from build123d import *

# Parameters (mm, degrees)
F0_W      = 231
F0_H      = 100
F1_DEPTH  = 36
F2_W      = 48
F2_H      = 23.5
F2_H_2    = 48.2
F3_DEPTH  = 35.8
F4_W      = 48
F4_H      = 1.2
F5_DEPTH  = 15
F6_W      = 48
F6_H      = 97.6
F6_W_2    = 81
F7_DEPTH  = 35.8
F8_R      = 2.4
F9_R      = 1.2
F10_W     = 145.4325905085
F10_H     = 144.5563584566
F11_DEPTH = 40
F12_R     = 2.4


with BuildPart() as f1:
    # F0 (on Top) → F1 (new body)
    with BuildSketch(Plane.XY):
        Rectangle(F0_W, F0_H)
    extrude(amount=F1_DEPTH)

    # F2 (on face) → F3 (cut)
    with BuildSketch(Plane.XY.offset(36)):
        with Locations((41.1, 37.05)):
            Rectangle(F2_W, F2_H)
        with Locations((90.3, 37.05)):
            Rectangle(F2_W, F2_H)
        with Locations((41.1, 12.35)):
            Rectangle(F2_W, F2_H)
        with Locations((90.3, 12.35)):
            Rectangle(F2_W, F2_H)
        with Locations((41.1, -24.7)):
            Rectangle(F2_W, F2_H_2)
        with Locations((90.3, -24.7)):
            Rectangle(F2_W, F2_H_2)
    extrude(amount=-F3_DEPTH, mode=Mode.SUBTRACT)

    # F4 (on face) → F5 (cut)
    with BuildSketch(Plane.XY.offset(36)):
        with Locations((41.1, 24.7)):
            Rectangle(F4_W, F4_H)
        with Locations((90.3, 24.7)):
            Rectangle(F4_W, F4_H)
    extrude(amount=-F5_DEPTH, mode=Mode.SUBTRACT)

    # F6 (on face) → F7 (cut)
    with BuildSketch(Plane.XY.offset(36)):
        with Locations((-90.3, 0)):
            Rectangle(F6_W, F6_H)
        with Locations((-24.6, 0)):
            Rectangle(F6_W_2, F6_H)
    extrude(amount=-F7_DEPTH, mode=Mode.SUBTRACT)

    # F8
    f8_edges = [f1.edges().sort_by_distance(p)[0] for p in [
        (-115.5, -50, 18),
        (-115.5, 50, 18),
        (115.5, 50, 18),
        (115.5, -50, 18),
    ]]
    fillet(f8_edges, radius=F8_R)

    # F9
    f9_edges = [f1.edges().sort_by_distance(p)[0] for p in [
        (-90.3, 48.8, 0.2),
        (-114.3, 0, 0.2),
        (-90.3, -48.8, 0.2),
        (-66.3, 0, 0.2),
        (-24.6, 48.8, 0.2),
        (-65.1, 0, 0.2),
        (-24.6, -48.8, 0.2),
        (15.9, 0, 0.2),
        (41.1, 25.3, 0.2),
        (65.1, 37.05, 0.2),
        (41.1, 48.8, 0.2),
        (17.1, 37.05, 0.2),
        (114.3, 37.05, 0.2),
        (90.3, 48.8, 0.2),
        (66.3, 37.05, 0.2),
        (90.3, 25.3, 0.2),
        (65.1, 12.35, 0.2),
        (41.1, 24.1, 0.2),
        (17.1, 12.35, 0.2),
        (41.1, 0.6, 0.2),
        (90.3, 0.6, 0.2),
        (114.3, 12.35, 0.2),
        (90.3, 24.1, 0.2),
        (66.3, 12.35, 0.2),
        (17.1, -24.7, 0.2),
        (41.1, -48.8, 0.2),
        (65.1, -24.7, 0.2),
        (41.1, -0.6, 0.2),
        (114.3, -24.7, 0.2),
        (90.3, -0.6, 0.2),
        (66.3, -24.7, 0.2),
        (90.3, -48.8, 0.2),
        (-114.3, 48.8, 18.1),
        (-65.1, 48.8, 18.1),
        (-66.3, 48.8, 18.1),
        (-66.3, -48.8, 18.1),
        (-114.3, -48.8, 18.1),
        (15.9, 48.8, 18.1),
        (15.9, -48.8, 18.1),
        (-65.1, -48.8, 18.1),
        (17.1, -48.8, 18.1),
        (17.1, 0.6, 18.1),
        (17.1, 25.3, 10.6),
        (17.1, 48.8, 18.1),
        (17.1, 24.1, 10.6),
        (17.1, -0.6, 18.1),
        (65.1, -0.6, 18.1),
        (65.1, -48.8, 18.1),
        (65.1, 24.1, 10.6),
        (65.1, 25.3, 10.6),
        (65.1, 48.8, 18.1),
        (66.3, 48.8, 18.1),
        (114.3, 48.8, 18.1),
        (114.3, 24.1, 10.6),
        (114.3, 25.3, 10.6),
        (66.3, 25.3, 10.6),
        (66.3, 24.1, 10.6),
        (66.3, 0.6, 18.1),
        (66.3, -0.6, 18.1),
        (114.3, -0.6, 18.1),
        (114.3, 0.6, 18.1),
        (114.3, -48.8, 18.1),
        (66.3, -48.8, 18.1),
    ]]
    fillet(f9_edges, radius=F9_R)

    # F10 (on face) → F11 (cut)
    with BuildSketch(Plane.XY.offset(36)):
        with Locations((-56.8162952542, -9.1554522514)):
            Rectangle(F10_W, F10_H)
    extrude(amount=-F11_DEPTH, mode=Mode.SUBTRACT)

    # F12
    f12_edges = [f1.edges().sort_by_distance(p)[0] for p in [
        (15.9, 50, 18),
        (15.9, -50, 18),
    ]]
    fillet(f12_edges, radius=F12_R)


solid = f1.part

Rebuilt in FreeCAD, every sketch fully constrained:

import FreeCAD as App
import Part
import Sketcher

V = App.Vector
Q = App.Units.Quantity


def edges_at(feature, points):
    """Names of the edges that pass closest to the given points."""
    edges = feature.Shape.Edges
    near = lambda p: min(range(len(edges)), key=lambda i: edges[i].distToShape(Part.Vertex(*p))[0])
    return sorted({f"Edge{near(p) + 1}" for p in points})

doc = App.newDocument("Part")
body = doc.addObject("PartDesign::Body", "Body")

# Sketch on XY plane
sketch1 = doc.addObject("Sketcher::SketchObject", "Sketch")
body.addObject(sketch1)
sketch1.AttachmentSupport = (doc.XY_Plane, [""])
sketch1.MapMode = "FlatFace"
sketch1.addGeometry([
    Part.LineSegment(V(-115.5, 50, 0), V(-115.5, -50, 0)),
    Part.LineSegment(V(-115.5, -50, 0), V(115.5, -50, 0)),
    Part.LineSegment(V(115.5, -50, 0), V(115.5, 50, 0)),
    Part.LineSegment(V(115.5, 50, 0), V(-115.5, 50, 0)),
], False)
sketch1.addConstraint([
    Sketcher.Constraint("Coincident", 0, 2, 1, 1),
    Sketcher.Constraint("Coincident", 1, 2, 2, 1),
    Sketcher.Constraint("Coincident", 2, 2, 3, 1),
    Sketcher.Constraint("Coincident", 3, 2, 0, 1),
    Sketcher.Constraint("Vertical", 0),
    Sketcher.Constraint("Horizontal", 1),
    Sketcher.Constraint("Vertical", 2),
    Sketcher.Constraint("Horizontal", 3),
    Sketcher.Constraint("Symmetric", 0, 2, 2, 2, -1, 1),
    Sketcher.Constraint("DistanceX", 1, 1, 1, 2, Q("231 mm")),
    Sketcher.Constraint("DistanceY", 0, 2, 0, 1, Q("100 mm")),
])
pad1 = doc.addObject("PartDesign::Pad", "Pad")
body.addObject(pad1)
pad1.Profile = sketch1
pad1.Length = 36

# Sketch on XY plane
sketch2 = doc.addObject("Sketcher::SketchObject", "Sketch001")
body.addObject(sketch2)
sketch2.AttachmentSupport = (doc.XY_Plane, [""])
sketch2.MapMode = "FlatFace"
sketch2.AttachmentOffset = App.Placement(V(0, 0, 36), App.Rotation())
sketch2.addGeometry([
    Part.LineSegment(V(17.1, 48.8, 0), V(17.1, 25.3, 0)),  # 0
    Part.LineSegment(V(17.1, 25.3, 0), V(65.1, 25.3, 0)),  # 1
    Part.LineSegment(V(65.1, 25.3, 0), V(65.1, 48.8, 0)),  # 2
    Part.LineSegment(V(65.1, 48.8, 0), V(17.1, 48.8, 0)),  # 3
    Part.LineSegment(V(66.3, 48.8, 0), V(66.3, 25.3, 0)),  # 4
    Part.LineSegment(V(66.3, 25.3, 0), V(114.3, 25.3, 0)),  # 5
    Part.LineSegment(V(114.3, 25.3, 0), V(114.3, 48.8, 0)),  # 6
    Part.LineSegment(V(114.3, 48.8, 0), V(66.3, 48.8, 0)),  # 7
    Part.LineSegment(V(17.1, 24.1, 0), V(17.1, 0.6, 0)),  # 8
    Part.LineSegment(V(17.1, 0.6, 0), V(65.1, 0.6, 0)),  # 9
    Part.LineSegment(V(65.1, 0.6, 0), V(65.1, 24.1, 0)),  # 10
    Part.LineSegment(V(65.1, 24.1, 0), V(17.1, 24.1, 0)),  # 11
    Part.LineSegment(V(66.3, 24.1, 0), V(66.3, 0.6, 0)),  # 12
    Part.LineSegment(V(66.3, 0.6, 0), V(114.3, 0.6, 0)),  # 13
    Part.LineSegment(V(114.3, 0.6, 0), V(114.3, 24.1, 0)),  # 14
    Part.LineSegment(V(114.3, 24.1, 0), V(66.3, 24.1, 0)),  # 15
    Part.LineSegment(V(17.1, -0.6, 0), V(17.1, -48.8, 0)),  # 16
    Part.LineSegment(V(17.1, -48.8, 0), V(65.1, -48.8, 0)),  # 17
    Part.LineSegment(V(65.1, -48.8, 0), V(65.1, -0.6, 0)),  # 18
    Part.LineSegment(V(65.1, -0.6, 0), V(17.1, -0.6, 0)),  # 19
    Part.LineSegment(V(66.3, -0.6, 0), V(66.3, -48.8, 0)),  # 20
    Part.LineSegment(V(66.3, -48.8, 0), V(114.3, -48.8, 0)),  # 21
    Part.LineSegment(V(114.3, -48.8, 0), V(114.3, -0.6, 0)),  # 22
    Part.LineSegment(V(114.3, -0.6, 0), V(66.3, -0.6, 0)),  # 23
], False)
sketch2.addConstraint([
    Sketcher.Constraint("Coincident", 0, 2, 1, 1),
    Sketcher.Constraint("Coincident", 1, 2, 2, 1),
    Sketcher.Constraint("Coincident", 2, 2, 3, 1),
    Sketcher.Constraint("Coincident", 3, 2, 0, 1),
    Sketcher.Constraint("Coincident", 4, 2, 5, 1),
    Sketcher.Constraint("Coincident", 5, 2, 6, 1),
    Sketcher.Constraint("Coincident", 6, 2, 7, 1),
    Sketcher.Constraint("Coincident", 7, 2, 4, 1),
    Sketcher.Constraint("Coincident", 8, 2, 9, 1),
    Sketcher.Constraint("Coincident", 9, 2, 10, 1),
    Sketcher.Constraint("Coincident", 10, 2, 11, 1),
    Sketcher.Constraint("Coincident", 11, 2, 8, 1),
    Sketcher.Constraint("Coincident", 12, 2, 13, 1),
    Sketcher.Constraint("Coincident", 13, 2, 14, 1),
    Sketcher.Constraint("Coincident", 14, 2, 15, 1),
    Sketcher.Constraint("Coincident", 15, 2, 12, 1),
    Sketcher.Constraint("Coincident", 16, 2, 17, 1),
    Sketcher.Constraint("Coincident", 17, 2, 18, 1),
    Sketcher.Constraint("Coincident", 18, 2, 19, 1),
    Sketcher.Constraint("Coincident", 19, 2, 16, 1),
    Sketcher.Constraint("Coincident", 20, 2, 21, 1),
    Sketcher.Constraint("Coincident", 21, 2, 22, 1),
    Sketcher.Constraint("Coincident", 22, 2, 23, 1),
    Sketcher.Constraint("Coincident", 23, 2, 20, 1),
    Sketcher.Constraint("Vertical", 0),
    Sketcher.Constraint("Horizontal", 1),
    Sketcher.Constraint("Vertical", 2),
    Sketcher.Constraint("Horizontal", 3),
    Sketcher.Constraint("Vertical", 4),
    Sketcher.Constraint("Horizontal", 5),
    Sketcher.Constraint("Vertical", 6),
    Sketcher.Constraint("Horizontal", 7),
    Sketcher.Constraint("Vertical", 8),
    Sketcher.Constraint("Horizontal", 9),
    Sketcher.Constraint("Vertical", 10),
    Sketcher.Constraint("Horizontal", 11),
    Sketcher.Constraint("Vertical", 12),
    Sketcher.Constraint("Horizontal", 13),
    Sketcher.Constraint("Vertical", 14),
    Sketcher.Constraint("Horizontal", 15),
    Sketcher.Constraint("Vertical", 16),
    Sketcher.Constraint("Horizontal", 17),
    Sketcher.Constraint("Vertical", 18),
    Sketcher.Constraint("Horizontal", 19),
    Sketcher.Constraint("Vertical", 20),
    Sketcher.Constraint("Horizontal", 21),
    Sketcher.Constraint("Vertical", 22),
    Sketcher.Constraint("Horizontal", 23),
    Sketcher.Constraint("Symmetric", 3, 2, 16, 2, -1),
    Sketcher.Constraint("Symmetric", 9, 2, 18, 2, -1),
    Sketcher.Constraint("Symmetric", 7, 2, 20, 2, -1),
    Sketcher.Constraint("Symmetric", 13, 2, 22, 2, -1),
    Sketcher.Constraint("Horizontal", 1, 2, 4, 2),
    Sketcher.Constraint("Horizontal", 3, 2, 6, 2),
    Sketcher.Constraint("Horizontal", 9, 2, 12, 2),
    Sketcher.Constraint("Horizontal", 11, 2, 14, 2),
    Sketcher.Constraint("Vertical", 3, 2, 8, 2),
    Sketcher.Constraint("Vertical", 2, 2, 9, 2),
    Sketcher.Constraint("Vertical", 7, 2, 12, 2),
    Sketcher.Constraint("Vertical", 6, 2, 13, 2),
    Sketcher.Constraint("Equal", 3, 5),
    Sketcher.Constraint("Equal", 6, 8),
    Sketcher.Constraint("DistanceX", 1, 1, 1, 2, Q("48 mm")),
    Sketcher.Constraint("DistanceY", 0, 2, 0, 1, Q("23.5 mm")),
    Sketcher.Constraint("DistanceY", 16, 2, 16, 1, Q("48.2 mm")),
    Sketcher.Constraint("DistanceX", -1, 1, 0, 2, Q("17.1 mm")),
    Sketcher.Constraint("DistanceY", -1, 1, 0, 2, Q("25.3 mm")),
    Sketcher.Constraint("DistanceX", -1, 1, 4, 2, Q("66.3 mm")),
])
pocket1 = doc.addObject("PartDesign::Pocket", "Pocket")
body.addObject(pocket1)
pocket1.Profile = sketch2
pocket1.Length = 35.8

# Sketch on XY plane
sketch3 = doc.addObject("Sketcher::SketchObject", "Sketch002")
body.addObject(sketch3)
sketch3.AttachmentSupport = (doc.XY_Plane, [""])
sketch3.MapMode = "FlatFace"
sketch3.AttachmentOffset = App.Placement(V(0, 0, 36), App.Rotation())
sketch3.addGeometry([
    Part.LineSegment(V(17.1, 25.3, 0), V(17.1, 24.1, 0)),  # 0
    Part.LineSegment(V(17.1, 24.1, 0), V(65.1, 24.1, 0)),  # 1
    Part.LineSegment(V(65.1, 24.1, 0), V(65.1, 25.3, 0)),  # 2
    Part.LineSegment(V(65.1, 25.3, 0), V(17.1, 25.3, 0)),  # 3
    Part.LineSegment(V(66.3, 25.3, 0), V(66.3, 24.1, 0)),  # 4
    Part.LineSegment(V(66.3, 24.1, 0), V(114.3, 24.1, 0)),  # 5
    Part.LineSegment(V(114.3, 24.1, 0), V(114.3, 25.3, 0)),  # 6
    Part.LineSegment(V(114.3, 25.3, 0), V(66.3, 25.3, 0)),  # 7
], False)
sketch3.addConstraint([
    Sketcher.Constraint("Coincident", 0, 2, 1, 1),
    Sketcher.Constraint("Coincident", 1, 2, 2, 1),
    Sketcher.Constraint("Coincident", 2, 2, 3, 1),
    Sketcher.Constraint("Coincident", 3, 2, 0, 1),
    Sketcher.Constraint("Coincident", 4, 2, 5, 1),
    Sketcher.Constraint("Coincident", 5, 2, 6, 1),
    Sketcher.Constraint("Coincident", 6, 2, 7, 1),
    Sketcher.Constraint("Coincident", 7, 2, 4, 1),
    Sketcher.Constraint("Vertical", 0),
    Sketcher.Constraint("Horizontal", 1),
    Sketcher.Constraint("Vertical", 2),
    Sketcher.Constraint("Horizontal", 3),
    Sketcher.Constraint("Vertical", 4),
    Sketcher.Constraint("Horizontal", 5),
    Sketcher.Constraint("Vertical", 6),
    Sketcher.Constraint("Horizontal", 7),
    Sketcher.Constraint("Horizontal", 1, 2, 4, 2),
    Sketcher.Constraint("Horizontal", 3, 2, 6, 2),
    Sketcher.Constraint("Equal", 3, 5),
    Sketcher.Constraint("DistanceX", 1, 1, 1, 2, Q("48 mm")),
    Sketcher.Constraint("DistanceY", 0, 2, 0, 1, Q("1.2 mm")),
    Sketcher.Constraint("DistanceX", -1, 1, 0, 2, Q("17.1 mm")),
    Sketcher.Constraint("DistanceY", -1, 1, 0, 2, Q("24.1 mm")),
    Sketcher.Constraint("DistanceX", -1, 1, 4, 2, Q("66.3 mm")),
])
pocket2 = doc.addObject("PartDesign::Pocket", "Pocket001")
body.addObject(pocket2)
pocket2.Profile = sketch3
pocket2.Length = 15

# Sketch on XY plane
sketch4 = doc.addObject("Sketcher::SketchObject", "Sketch003")
body.addObject(sketch4)
sketch4.AttachmentSupport = (doc.XY_Plane, [""])
sketch4.MapMode = "FlatFace"
sketch4.AttachmentOffset = App.Placement(V(0, 0, 36), App.Rotation())
sketch4.addGeometry([
    Part.LineSegment(V(-114.3, 48.8, 0), V(-114.3, -48.8, 0)),  # 0
    Part.LineSegment(V(-114.3, -48.8, 0), V(-66.3, -48.8, 0)),  # 1
    Part.LineSegment(V(-66.3, -48.8, 0), V(-66.3, 48.8, 0)),  # 2
    Part.LineSegment(V(-66.3, 48.8, 0), V(-114.3, 48.8, 0)),  # 3
    Part.LineSegment(V(-65.1, 48.8, 0), V(-65.1, -48.8, 0)),  # 4
    Part.LineSegment(V(-65.1, -48.8, 0), V(15.9, -48.8, 0)),  # 5
    Part.LineSegment(V(15.9, -48.8, 0), V(15.9, 48.8, 0)),  # 6
    Part.LineSegment(V(15.9, 48.8, 0), V(-65.1, 48.8, 0)),  # 7
], False)
sketch4.addConstraint([
    Sketcher.Constraint("Coincident", 0, 2, 1, 1),
    Sketcher.Constraint("Coincident", 1, 2, 2, 1),
    Sketcher.Constraint("Coincident", 2, 2, 3, 1),
    Sketcher.Constraint("Coincident", 3, 2, 0, 1),
    Sketcher.Constraint("Coincident", 4, 2, 5, 1),
    Sketcher.Constraint("Coincident", 5, 2, 6, 1),
    Sketcher.Constraint("Coincident", 6, 2, 7, 1),
    Sketcher.Constraint("Coincident", 7, 2, 4, 1),
    Sketcher.Constraint("Vertical", 0),
    Sketcher.Constraint("Horizontal", 1),
    Sketcher.Constraint("Vertical", 2),
    Sketcher.Constraint("Horizontal", 3),
    Sketcher.Constraint("Vertical", 4),
    Sketcher.Constraint("Horizontal", 5),
    Sketcher.Constraint("Vertical", 6),
    Sketcher.Constraint("Horizontal", 7),
    Sketcher.Constraint("Horizontal", 1, 2, 4, 2),
    Sketcher.Constraint("Horizontal", 3, 2, 6, 2),
    Sketcher.Constraint("DistanceX", 1, 1, 1, 2, Q("48 mm")),
    Sketcher.Constraint("DistanceX", 5, 1, 5, 2, Q("81 mm")),
    Sketcher.Constraint("DistanceY", 0, 2, 0, 1, Q("97.6 mm")),
    Sketcher.Constraint("DistanceX", 0, 2, -1, 1, Q("114.3 mm")),
    Sketcher.Constraint("DistanceY", 0, 2, -1, 1, Q("48.8 mm")),
    Sketcher.Constraint("DistanceX", 4, 2, -1, 1, Q("65.1 mm")),
])
pocket3 = doc.addObject("PartDesign::Pocket", "Pocket002")
body.addObject(pocket3)
pocket3.Profile = sketch4
pocket3.Length = 35.8
doc.recompute()

fillet = doc.addObject("PartDesign::Fillet", "Fillet")
body.addObject(fillet)
fillet.Base = (pocket3, edges_at(pocket3, [
    (-115.5, -50, 18),
    (-115.5, 50, 18),
    (115.5, 50, 18),
    (115.5, -50, 18),
]))
fillet.Radius = 2.4
doc.recompute()

fillet2 = doc.addObject("PartDesign::Fillet", "Fillet001")
body.addObject(fillet2)
fillet2.Base = (fillet, edges_at(fillet, [
    (-90.3, 48.8, 0.2),
    (-114.3, 0, 0.2),
    (-90.3, -48.8, 0.2),
    (-66.3, 0, 0.2),
    (-24.6, 48.8, 0.2),
    (-65.1, 0, 0.2),
    (-24.6, -48.8, 0.2),
    (15.9, 0, 0.2),
    (41.1, 25.3, 0.2),
    (65.1, 37.05, 0.2),
    (41.1, 48.8, 0.2),
    (17.1, 37.05, 0.2),
    (114.3, 37.05, 0.2),
    (90.3, 48.8, 0.2),
    (66.3, 37.05, 0.2),
    (90.3, 25.3, 0.2),
    (65.1, 12.35, 0.2),
    (41.1, 24.1, 0.2),
    (17.1, 12.35, 0.2),
    (41.1, 0.6, 0.2),
    (90.3, 0.6, 0.2),
    (114.3, 12.35, 0.2),
    (90.3, 24.1, 0.2),
    (66.3, 12.35, 0.2),
    (17.1, -24.7, 0.2),
    (41.1, -48.8, 0.2),
    (65.1, -24.7, 0.2),
    (41.1, -0.6, 0.2),
    (114.3, -24.7, 0.2),
    (90.3, -0.6, 0.2),
    (66.3, -24.7, 0.2),
    (90.3, -48.8, 0.2),
    (-114.3, 48.8, 18.1),
    (-65.1, 48.8, 18.1),
    (-66.3, 48.8, 18.1),
    (-66.3, -48.8, 18.1),
    (-114.3, -48.8, 18.1),
    (15.9, 48.8, 18.1),
    (15.9, -48.8, 18.1),
    (-65.1, -48.8, 18.1),
    (17.1, -48.8, 18.1),
    (17.1, 0.6, 18.1),
    (17.1, 25.3, 10.6),
    (17.1, 48.8, 18.1),
    (17.1, 24.1, 10.6),
    (17.1, -0.6, 18.1),
    (65.1, -0.6, 18.1),
    (65.1, -48.8, 18.1),
    (65.1, 24.1, 10.6),
    (65.1, 25.3, 10.6),
    (65.1, 48.8, 18.1),
    (66.3, 48.8, 18.1),
    (114.3, 48.8, 18.1),
    (114.3, 24.1, 10.6),
    (114.3, 25.3, 10.6),
    (66.3, 25.3, 10.6),
    (66.3, 24.1, 10.6),
    (66.3, 0.6, 18.1),
    (66.3, -0.6, 18.1),
    (114.3, -0.6, 18.1),
    (114.3, 0.6, 18.1),
    (114.3, -48.8, 18.1),
    (66.3, -48.8, 18.1),
]))
fillet2.Radius = 1.2

# Sketch on XY plane
sketch5 = doc.addObject("Sketcher::SketchObject", "Sketch004")
body.addObject(sketch5)
sketch5.AttachmentSupport = (doc.XY_Plane, [""])
sketch5.MapMode = "FlatFace"
sketch5.AttachmentOffset = App.Placement(V(0, 0, 36), App.Rotation())
sketch5.addGeometry([
    Part.LineSegment(V(-129.532591, 63.122727, 0), V(-129.532591, -81.433631, 0)),
    Part.LineSegment(V(-129.532591, -81.433631, 0), V(15.9, -81.433631, 0)),
    Part.LineSegment(V(15.9, -81.433631, 0), V(15.9, 63.122727, 0)),
    Part.LineSegment(V(15.9, 63.122727, 0), V(-129.532591, 63.122727, 0)),
], False)
sketch5.addConstraint([
    Sketcher.Constraint("Coincident", 0, 2, 1, 1),
    Sketcher.Constraint("Coincident", 1, 2, 2, 1),
    Sketcher.Constraint("Coincident", 2, 2, 3, 1),
    Sketcher.Constraint("Coincident", 3, 2, 0, 1),
    Sketcher.Constraint("Vertical", 0),
    Sketcher.Constraint("Horizontal", 1),
    Sketcher.Constraint("Vertical", 2),
    Sketcher.Constraint("Horizontal", 3),
    Sketcher.Constraint("DistanceX", -1, 1, 1, 2, Q("15.9 mm")),
    Sketcher.Constraint("DistanceX", 1, 1, 1, 2, Q("145.432591 mm")),
    Sketcher.Constraint("DistanceY", 0, 2, 0, 1, Q("144.556358 mm")),
    Sketcher.Constraint("DistanceY", 0, 2, -1, 1, Q("81.433631 mm")),
])
pocket4 = doc.addObject("PartDesign::Pocket", "Pocket003")
body.addObject(pocket4)
pocket4.Profile = sketch5
pocket4.Length = 40
doc.recompute()

fillet3 = doc.addObject("PartDesign::Fillet", "Fillet002")
body.addObject(fillet3)
fillet3.Base = (pocket4, edges_at(pocket4, [(15.9, 50, 18), (15.9, -50, 18)]))
fillet3.Radius = 2.4

doc.recompute()
